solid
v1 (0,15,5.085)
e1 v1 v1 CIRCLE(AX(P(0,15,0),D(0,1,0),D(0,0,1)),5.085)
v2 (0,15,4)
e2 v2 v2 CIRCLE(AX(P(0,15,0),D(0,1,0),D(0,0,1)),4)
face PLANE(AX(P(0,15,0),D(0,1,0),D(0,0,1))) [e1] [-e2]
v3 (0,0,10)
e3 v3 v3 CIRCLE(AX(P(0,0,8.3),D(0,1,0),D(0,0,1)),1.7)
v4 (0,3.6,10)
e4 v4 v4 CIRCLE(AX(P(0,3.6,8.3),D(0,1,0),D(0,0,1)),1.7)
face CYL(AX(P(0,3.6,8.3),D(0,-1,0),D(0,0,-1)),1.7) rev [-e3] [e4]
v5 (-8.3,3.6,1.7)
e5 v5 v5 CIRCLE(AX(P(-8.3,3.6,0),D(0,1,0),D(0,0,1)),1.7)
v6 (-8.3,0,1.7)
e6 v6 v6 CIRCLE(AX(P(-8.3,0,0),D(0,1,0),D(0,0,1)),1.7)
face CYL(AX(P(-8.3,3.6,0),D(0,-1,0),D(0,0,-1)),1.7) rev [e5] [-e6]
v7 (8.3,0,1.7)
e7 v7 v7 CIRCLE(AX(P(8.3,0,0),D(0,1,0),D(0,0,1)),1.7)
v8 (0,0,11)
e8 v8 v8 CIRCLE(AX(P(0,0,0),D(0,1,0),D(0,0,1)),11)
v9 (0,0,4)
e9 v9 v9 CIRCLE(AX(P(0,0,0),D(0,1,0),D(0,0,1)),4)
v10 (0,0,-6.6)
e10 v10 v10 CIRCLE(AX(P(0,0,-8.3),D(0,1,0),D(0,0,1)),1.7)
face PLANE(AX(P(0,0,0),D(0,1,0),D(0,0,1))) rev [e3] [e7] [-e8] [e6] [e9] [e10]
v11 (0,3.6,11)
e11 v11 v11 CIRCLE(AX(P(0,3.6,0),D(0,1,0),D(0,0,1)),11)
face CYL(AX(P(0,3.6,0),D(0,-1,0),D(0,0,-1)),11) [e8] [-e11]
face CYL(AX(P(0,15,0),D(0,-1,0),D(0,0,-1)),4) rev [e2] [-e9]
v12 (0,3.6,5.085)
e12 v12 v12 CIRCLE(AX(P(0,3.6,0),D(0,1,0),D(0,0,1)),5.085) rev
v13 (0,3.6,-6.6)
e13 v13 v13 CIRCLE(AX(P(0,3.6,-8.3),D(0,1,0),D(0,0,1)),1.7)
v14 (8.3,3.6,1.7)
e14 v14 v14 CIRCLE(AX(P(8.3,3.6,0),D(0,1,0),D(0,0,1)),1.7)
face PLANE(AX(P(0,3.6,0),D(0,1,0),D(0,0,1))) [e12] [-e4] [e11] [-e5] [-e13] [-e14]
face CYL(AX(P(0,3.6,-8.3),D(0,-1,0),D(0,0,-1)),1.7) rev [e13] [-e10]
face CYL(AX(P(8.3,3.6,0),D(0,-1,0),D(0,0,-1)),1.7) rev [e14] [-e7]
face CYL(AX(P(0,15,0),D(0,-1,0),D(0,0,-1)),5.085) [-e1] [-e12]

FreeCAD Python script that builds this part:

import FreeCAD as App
import Part
import Sketcher
from FreeCAD import Vector
Q = App.Units.Quantity

doc = App.newDocument("Part")
body = doc.addObject("PartDesign::Body", "Body")

# Sketch on XZ plane
sketch1 = body.newObject("Sketcher::SketchObject", "Sketch")
sketch1.AttachmentSupport = (doc.getObject("XZ_Plane"), [""])
sketch1.MapMode = "FlatFace"
sketch1.addGeometry([
    Part.Circle(Vector(0, 0, 0), Vector(0, 0, 1), 11),  # 0
    Part.Circle(Vector(0, 8.3, 0), Vector(0, 0, 1), 1.7),  # 1
    Part.Circle(Vector(-8.3, 0, 0), Vector(0, 0, 1), 1.7),  # 2
    Part.Circle(Vector(0, 0, 0), Vector(0, 0, 1), 5),  # 3
    Part.Circle(Vector(8.3, 0, 0), Vector(0, 0, 1), 1.7),  # 4
    Part.Circle(Vector(0, -8.3, 0), Vector(0, 0, 1), 1.7),  # 5
], False)
sketch1.addConstraint([
    Sketcher.Constraint("Coincident", 0, 3, -1, 1),
    Sketcher.Constraint("Coincident", 3, 3, -1, 1),
    Sketcher.Constraint("Equal", 1, 2),
    Sketcher.Constraint("Equal", 2, 4),
    Sketcher.Constraint("Equal", 4, 5),
    Sketcher.Constraint("Symmetric", 2, 3, 4, 3, -1, 1),
    Sketcher.Constraint("Symmetric", 1, 3, 5, 3, -1, 1),
    Sketcher.Constraint("PointOnObject", 1, 3, -2),
    Sketcher.Constraint("PointOnObject", 2, 3, -1),
    Sketcher.Constraint("Diameter", 0, Q("22 mm")),
    Sketcher.Constraint("Diameter", 3, Q("10 mm")),
    Sketcher.Constraint("Diameter", 1, Q("3.4 mm")),
    Sketcher.Constraint("DistanceY", -1, 1, 1, 3, Q("8.3 mm")),
    Sketcher.Constraint("DistanceX", 2, 3, -1, 1, Q("8.3 mm")),
])
pad1 = body.newObject("PartDesign::Pad", "Pad")
pad1.Profile = sketch1
pad1.Length = 3.6
pad1.Reversed = True

# Sketch on XZ plane
sketch2 = body.newObject("Sketcher::SketchObject", "Sketch001")
sketch2.AttachmentSupport = (doc.getObject("XZ_Plane"), [""])
sketch2.MapMode = "FlatFace"
sketch2.addGeometry([
    Part.Circle(Vector(0, 0, 0), Vector(0, 0, 1), 5.1),
    Part.Circle(Vector(0, 0, 0), Vector(0, 0, 1), 4),
], False)
sketch2.addConstraint([
    Sketcher.Constraint("Coincident", 0, 3, -1, 1),
    Sketcher.Constraint("Coincident", 1, 3, -1, 1),
    Sketcher.Constraint("Diameter", 1, Q("8 mm")),
    Sketcher.Constraint("Diameter", 0, Q("10.17 mm")),
])
pad2 = body.newObject("PartDesign::Pad", "Pad001")
pad2.Profile = sketch2
pad2.Length = 15
pad2.Reversed = True

doc.recompute()
